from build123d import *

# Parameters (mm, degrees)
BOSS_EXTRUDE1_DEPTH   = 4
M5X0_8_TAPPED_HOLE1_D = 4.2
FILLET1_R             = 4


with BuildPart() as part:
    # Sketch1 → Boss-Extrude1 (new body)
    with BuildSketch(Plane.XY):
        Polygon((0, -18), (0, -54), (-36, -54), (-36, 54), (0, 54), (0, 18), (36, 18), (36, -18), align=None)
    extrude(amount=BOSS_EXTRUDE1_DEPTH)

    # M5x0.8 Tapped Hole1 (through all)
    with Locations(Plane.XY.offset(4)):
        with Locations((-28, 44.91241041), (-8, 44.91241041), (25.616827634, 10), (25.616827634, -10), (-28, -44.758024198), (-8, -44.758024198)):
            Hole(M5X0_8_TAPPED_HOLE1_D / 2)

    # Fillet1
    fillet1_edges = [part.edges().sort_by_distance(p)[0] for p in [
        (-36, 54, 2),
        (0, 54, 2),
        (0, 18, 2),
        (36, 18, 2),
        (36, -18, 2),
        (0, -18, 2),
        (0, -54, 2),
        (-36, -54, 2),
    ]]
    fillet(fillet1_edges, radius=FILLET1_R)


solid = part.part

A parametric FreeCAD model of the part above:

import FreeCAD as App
import Part
import Sketcher

V = App.Vector


def edges_at(feature, points):
    """Names of the edges that pass closest to the given points."""
    edges = feature.Shape.Edges
    near = lambda p: min(range(len(edges)), key=lambda i: edges[i].distToShape(Part.Vertex(*p))[0])
    return sorted({f"Edge{near(p) + 1}" for p in points})


def add_polygon(sketch, points):
    """Adds a closed chain of lines whose ends are joined by coincident constraints."""
    first, n = sketch.GeometryCount, len(points)
    for a, b in zip(points, points[1:] + points[:1]):
        sketch.addGeometry(Part.LineSegment(App.Vector(*a, 0), App.Vector(*b, 0)), False)
    for i in range(n):
        sketch.addConstraint(Sketcher.Constraint("Coincident", first + i, 2, first + (i + 1) % n, 1))

doc = App.newDocument("Part")
params = doc.addObject("Spreadsheet::Sheet", "Params")
for row, (alias, value) in enumerate([
    ("sketch1_width", "36 mm"),
    ("pad1_length", "4 mm"),
    ("sketch2_diameter", "4.2 mm"),
    ("hole_diameter", "4.2 mm"),
    ("fillet_radius", "4 mm"),
], start=1):
    params.set(f"A{row}", alias)
    params.set(f"B{row}", "=" + value)
    params.setAlias(f"B{row}", alias)

body = doc.addObject("PartDesign::Body", "Body")

sketch1 = body.newObject("Sketcher::SketchObject", "Sketch")
sketch1.AttachmentSupport = (doc.getObject("XY_Plane"), [""])
sketch1.MapMode = "FlatFace"
add_polygon(sketch1, [(0, -54), (0, -18), (36, -18), (36, 18), (0, 18), (0, 54), (-36, 54), (-36, -54)])
sketch1.addConstraint([
    Sketcher.Constraint("Vertical", 0),
    Sketcher.Constraint("Horizontal", 1),
    Sketcher.Constraint("Vertical", 2),
    Sketcher.Constraint("Horizontal", 3),
    Sketcher.Constraint("Vertical", 4),
    Sketcher.Constraint("Horizontal", 5),
    Sketcher.Constraint("Vertical", 6),
    Sketcher.Constraint("Horizontal", 7),
    Sketcher.Constraint("Symmetric", 0, 2, 3, 2, -1, 1),
    Sketcher.Constraint("Symmetric", 4, 2, 7, 2, -1),
    Sketcher.Constraint("Equal", 3, 5),
    Sketcher.Constraint("Equal", 7, 0),
    Sketcher.Constraint("Equal", 0, 2),
    Sketcher.Constraint("DistanceX", 1, 1, 1, 2, 36.0),
])
sketch1.setExpression("Constraints[21]", "Params.sketch1_width")
pad1 = body.newObject("PartDesign::Pad", "Pad")
pad1.Profile = sketch1
pad1.setExpression("Length", "Params.pad1_length")

sketch2 = body.newObject("Sketcher::SketchObject", "Sketch001")
sketch2.AttachmentSupport = (doc.getObject("XY_Plane"), [""])
sketch2.MapMode = "FlatFace"
sketch2.AttachmentOffset = App.Placement(V(0, 0, 4), App.Rotation())
sketch2.addGeometry([
    Part.Circle(V(-28, 44.9, 0), V(0, 0, 1), 2.1),
    Part.Circle(V(-8, 44.9, 0), V(0, 0, 1), 2.1),
    Part.Circle(V(25.6, 10, 0), V(0, 0, 1), 2.1),
    Part.Circle(V(25.6, -10, 0), V(0, 0, 1), 2.1),
    Part.Circle(V(-28, -44.8, 0), V(0, 0, 1), 2.1),
    Part.Circle(V(-8, -44.8, 0), V(0, 0, 1), 2.1),
], False)
sketch2.addConstraint([
    Sketcher.Constraint("Equal", 0, 1),
    Sketcher.Constraint("Equal", 1, 2),
    Sketcher.Constraint("Equal", 2, 3),
    Sketcher.Constraint("Equal", 3, 4),
    Sketcher.Constraint("Equal", 4, 5),
    Sketcher.Constraint("Symmetric", 2, 3, 3, 3, -1),
    Sketcher.Constraint("Horizontal", 0, 3, 1, 3),
    Sketcher.Constraint("Horizontal", 4, 3, 5, 3),
    Sketcher.Constraint("Vertical", 0, 3, 4, 3),
    Sketcher.Constraint("Vertical", 1, 3, 5, 3),
    Sketcher.Constraint("Diameter", 0, 4.2),
    Sketcher.Constraint("DistanceX", 0, 3, -1, 1, 28.0),
    Sketcher.Constraint("DistanceX", 1, 3, -1, 1, 8.0),
    Sketcher.Constraint("DistanceY", -1, 1, 2, 3, 10.0),
    Sketcher.Constraint("DistanceY", -1, 1, 0, 3, 44.91241),
    Sketcher.Constraint("DistanceX", -1, 1, 2, 3, 25.616828),
    Sketcher.Constraint("DistanceY", 4, 3, -1, 1, 44.758024),
])
sketch2.setExpression("Constraints[10]", "Params.sketch2_diameter")
doc.recompute()
hole = body.newObject("PartDesign::Hole", "Hole")
hole.Profile = sketch2
hole.ThreadType = "None"
hole.setExpression("Diameter", "Params.hole_diameter")
hole.DepthType = "ThroughAll"
doc.recompute()

fillet = body.newObject("PartDesign::Fillet", "Fillet")
fillet.Base = (hole, edges_at(hole, [
    (-36, 54, 2),
    (0, 54, 2),
    (0, 18, 2),
    (36, 18, 2),
    (36, -18, 2),
    (0, -18, 2),
    (0, -54, 2),
    (-36, -54, 2),
]))
fillet.setExpression("Radius", "Params.fillet_radius")

doc.recompute()
